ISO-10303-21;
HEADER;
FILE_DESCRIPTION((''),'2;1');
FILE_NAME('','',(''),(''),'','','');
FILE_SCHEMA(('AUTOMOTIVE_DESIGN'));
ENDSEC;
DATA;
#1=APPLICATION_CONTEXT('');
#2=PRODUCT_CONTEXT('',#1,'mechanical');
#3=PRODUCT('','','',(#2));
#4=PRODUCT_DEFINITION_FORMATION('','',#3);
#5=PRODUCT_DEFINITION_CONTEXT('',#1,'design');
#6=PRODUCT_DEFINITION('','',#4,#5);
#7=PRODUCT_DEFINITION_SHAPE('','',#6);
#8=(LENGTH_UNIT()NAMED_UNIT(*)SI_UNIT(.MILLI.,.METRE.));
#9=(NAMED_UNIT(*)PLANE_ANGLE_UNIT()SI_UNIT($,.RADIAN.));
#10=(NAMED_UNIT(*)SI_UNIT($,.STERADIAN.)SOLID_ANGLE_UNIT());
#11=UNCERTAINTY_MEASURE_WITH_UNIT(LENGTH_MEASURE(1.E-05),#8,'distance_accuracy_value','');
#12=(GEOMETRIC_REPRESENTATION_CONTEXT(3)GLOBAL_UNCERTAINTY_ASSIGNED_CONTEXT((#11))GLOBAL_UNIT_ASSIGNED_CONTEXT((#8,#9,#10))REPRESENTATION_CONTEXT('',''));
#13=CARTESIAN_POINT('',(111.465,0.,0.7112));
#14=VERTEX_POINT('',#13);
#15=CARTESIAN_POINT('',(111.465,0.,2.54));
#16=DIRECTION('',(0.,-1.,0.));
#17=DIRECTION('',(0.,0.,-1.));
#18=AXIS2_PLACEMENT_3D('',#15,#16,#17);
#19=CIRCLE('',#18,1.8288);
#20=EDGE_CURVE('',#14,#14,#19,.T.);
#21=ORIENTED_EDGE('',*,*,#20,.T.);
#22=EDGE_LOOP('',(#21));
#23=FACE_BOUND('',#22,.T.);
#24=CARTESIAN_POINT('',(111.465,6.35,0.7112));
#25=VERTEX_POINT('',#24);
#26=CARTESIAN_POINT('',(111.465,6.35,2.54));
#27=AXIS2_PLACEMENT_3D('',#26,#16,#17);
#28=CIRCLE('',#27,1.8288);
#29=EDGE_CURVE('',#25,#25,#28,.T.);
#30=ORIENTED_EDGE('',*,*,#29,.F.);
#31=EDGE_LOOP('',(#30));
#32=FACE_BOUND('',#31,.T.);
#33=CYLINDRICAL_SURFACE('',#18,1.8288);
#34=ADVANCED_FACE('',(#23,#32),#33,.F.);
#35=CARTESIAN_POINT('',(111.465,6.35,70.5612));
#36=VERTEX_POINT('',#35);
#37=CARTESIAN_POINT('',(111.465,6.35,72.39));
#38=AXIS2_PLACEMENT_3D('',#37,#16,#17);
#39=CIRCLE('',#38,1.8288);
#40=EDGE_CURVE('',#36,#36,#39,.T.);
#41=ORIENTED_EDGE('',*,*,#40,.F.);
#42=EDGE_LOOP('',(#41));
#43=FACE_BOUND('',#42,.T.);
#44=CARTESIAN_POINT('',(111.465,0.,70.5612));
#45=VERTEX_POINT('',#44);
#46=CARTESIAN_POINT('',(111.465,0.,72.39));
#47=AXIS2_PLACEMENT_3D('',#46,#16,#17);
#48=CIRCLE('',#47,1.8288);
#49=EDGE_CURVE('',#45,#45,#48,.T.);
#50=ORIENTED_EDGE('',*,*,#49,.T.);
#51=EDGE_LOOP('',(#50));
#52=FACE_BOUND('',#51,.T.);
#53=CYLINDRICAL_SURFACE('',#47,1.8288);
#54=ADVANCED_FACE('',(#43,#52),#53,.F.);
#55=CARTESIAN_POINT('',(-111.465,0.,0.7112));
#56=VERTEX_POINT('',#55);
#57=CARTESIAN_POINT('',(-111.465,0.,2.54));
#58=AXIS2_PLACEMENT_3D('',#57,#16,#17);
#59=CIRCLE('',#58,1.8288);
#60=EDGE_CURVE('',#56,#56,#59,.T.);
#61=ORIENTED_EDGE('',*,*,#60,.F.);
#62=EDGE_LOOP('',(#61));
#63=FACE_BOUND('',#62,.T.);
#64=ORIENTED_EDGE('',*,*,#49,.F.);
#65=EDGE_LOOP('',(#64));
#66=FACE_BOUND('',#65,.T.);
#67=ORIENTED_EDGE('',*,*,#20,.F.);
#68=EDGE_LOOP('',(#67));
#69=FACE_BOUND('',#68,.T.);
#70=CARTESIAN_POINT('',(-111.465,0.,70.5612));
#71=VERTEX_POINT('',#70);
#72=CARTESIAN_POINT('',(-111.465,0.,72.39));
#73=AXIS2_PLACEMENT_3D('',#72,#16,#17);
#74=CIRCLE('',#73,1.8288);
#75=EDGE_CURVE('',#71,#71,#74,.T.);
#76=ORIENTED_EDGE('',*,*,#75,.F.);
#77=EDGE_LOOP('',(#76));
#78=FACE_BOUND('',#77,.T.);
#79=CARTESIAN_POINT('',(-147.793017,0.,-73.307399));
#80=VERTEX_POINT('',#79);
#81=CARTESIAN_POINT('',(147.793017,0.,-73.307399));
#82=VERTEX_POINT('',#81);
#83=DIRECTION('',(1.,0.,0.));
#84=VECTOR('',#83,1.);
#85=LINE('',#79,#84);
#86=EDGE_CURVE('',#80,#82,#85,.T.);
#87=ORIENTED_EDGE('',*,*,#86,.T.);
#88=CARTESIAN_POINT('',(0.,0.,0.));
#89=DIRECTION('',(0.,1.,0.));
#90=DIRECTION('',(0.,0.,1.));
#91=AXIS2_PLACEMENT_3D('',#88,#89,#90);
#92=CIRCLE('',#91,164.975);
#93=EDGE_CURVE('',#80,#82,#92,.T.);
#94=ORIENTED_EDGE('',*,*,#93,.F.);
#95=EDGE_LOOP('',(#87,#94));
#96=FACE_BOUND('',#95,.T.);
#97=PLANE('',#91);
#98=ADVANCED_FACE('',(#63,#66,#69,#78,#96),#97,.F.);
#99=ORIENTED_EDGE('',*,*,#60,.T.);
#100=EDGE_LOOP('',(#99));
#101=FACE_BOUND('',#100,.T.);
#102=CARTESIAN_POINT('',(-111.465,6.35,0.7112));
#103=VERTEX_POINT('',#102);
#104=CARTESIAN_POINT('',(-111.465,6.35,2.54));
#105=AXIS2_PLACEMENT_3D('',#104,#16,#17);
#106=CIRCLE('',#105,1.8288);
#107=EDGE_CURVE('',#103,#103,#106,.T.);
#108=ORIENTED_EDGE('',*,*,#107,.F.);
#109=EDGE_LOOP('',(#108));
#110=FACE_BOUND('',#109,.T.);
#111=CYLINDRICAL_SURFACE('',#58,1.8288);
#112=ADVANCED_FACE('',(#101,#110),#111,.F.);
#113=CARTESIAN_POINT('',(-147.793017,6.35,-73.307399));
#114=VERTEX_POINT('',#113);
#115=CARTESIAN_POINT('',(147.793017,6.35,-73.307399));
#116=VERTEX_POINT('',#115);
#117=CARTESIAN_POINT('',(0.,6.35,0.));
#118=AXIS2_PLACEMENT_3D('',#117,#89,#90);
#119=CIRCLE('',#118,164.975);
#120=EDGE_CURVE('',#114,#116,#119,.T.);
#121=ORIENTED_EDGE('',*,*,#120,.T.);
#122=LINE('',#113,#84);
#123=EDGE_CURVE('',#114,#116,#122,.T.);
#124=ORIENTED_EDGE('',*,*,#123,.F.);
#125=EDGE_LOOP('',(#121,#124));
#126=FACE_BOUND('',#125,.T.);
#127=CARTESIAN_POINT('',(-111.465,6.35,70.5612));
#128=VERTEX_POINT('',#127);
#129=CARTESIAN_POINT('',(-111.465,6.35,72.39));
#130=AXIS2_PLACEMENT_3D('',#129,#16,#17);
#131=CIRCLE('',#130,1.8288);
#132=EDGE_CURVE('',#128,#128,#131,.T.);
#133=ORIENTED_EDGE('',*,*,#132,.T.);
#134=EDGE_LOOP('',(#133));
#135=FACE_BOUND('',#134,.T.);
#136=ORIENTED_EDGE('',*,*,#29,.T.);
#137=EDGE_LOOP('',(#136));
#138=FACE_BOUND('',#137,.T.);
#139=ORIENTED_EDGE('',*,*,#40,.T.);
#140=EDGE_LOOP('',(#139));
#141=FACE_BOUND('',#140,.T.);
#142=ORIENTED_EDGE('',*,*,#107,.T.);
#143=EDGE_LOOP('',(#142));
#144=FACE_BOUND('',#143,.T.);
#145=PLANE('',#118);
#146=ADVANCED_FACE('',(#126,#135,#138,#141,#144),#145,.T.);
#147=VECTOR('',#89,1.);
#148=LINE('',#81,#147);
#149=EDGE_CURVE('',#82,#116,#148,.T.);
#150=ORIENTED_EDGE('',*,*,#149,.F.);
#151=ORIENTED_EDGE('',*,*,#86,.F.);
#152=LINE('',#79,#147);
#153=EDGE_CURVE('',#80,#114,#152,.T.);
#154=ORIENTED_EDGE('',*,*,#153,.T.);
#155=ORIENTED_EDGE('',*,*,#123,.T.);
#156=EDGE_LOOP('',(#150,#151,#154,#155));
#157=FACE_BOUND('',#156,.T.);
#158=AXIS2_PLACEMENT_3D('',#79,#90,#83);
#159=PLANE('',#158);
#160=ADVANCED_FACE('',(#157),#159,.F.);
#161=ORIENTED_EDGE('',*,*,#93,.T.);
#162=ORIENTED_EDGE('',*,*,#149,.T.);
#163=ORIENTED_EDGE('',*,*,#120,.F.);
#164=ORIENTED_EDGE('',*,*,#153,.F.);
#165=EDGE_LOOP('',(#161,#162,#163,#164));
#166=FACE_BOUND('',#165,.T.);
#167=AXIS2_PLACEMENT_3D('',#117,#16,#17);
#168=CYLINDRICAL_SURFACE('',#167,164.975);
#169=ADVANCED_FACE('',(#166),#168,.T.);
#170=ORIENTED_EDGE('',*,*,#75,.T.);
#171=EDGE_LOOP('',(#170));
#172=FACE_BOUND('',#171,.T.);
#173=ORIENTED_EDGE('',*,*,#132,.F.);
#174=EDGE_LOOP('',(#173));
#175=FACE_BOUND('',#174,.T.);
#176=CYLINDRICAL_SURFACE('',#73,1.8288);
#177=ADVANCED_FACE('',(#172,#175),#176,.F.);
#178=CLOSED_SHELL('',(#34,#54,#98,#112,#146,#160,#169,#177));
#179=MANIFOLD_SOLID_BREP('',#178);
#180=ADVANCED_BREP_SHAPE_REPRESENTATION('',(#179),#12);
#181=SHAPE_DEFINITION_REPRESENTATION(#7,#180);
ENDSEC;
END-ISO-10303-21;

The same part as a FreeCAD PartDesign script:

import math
import FreeCAD as App
import Part
import Sketcher
Q = App.Units.Quantity

doc = App.newDocument("Part")
body = doc.addObject("PartDesign::Body", "Body")

# Sketch on XZ plane
sketch1 = body.newObject("Sketcher::SketchObject", "Sketch")
sketch1.AttachmentSupport = (doc.getObject("XZ_Plane"), [""])
sketch1.MapMode = "FlatFace"
sketch1.addGeometry(Part.Circle(App.Vector(0, 0, 0), App.Vector(0, 0, 1), 165), False)
sketch1.addConstraint([
    Sketcher.Constraint("Coincident", 0, 3, -1, 1),
    Sketcher.Constraint("Diameter", 0, Q("329.95 mm")),
])
pad1 = body.newObject("PartDesign::Pad", "Pad")
pad1.Profile = sketch1
pad1.Length = Q("0.25 in")
pad1.Reversed = True

# Sketch on XZ plane
sketch2 = body.newObject("Sketcher::SketchObject", "Sketch001")
sketch2.AttachmentSupport = (doc.getObject("XZ_Plane"), [""])
sketch2.MapMode = "FlatFace"
sketch2.addGeometry([
    Part.Circle(App.Vector(111.5, 2.5, 0), App.Vector(0, 0, 1), 1.8),
    Part.Circle(App.Vector(111.5, 72.4, 0), App.Vector(0, 0, 1), 1.8),
    Part.Circle(App.Vector(-111.5, 72.4, 0), App.Vector(0, 0, 1), 1.8),
    Part.Circle(App.Vector(-111.5, 2.5, 0), App.Vector(0, 0, 1), 1.8),
], False)
sketch2.addConstraint([
    Sketcher.Constraint("Equal", 0, 1),
    Sketcher.Constraint("Equal", 1, 2),
    Sketcher.Constraint("Equal", 2, 3),
    Sketcher.Constraint("Symmetric", 1, 3, 2, 3, -2),
    Sketcher.Constraint("Symmetric", 0, 3, 3, 3, -2),
    Sketcher.Constraint("Vertical", 0, 3, 1, 3),
    Sketcher.Constraint("Diameter", 0, Q("0.144 in")),
    Sketcher.Constraint("DistanceY", -1, 1, 0, 3, Q("0.1 in")),
    Sketcher.Constraint("DistanceY", -1, 1, 1, 3, Q("2.85 in")),
    Sketcher.Constraint("DistanceX", -1, 1, 0, 3, Q("111.465 mm")),
])
doc.recompute()
hole = body.newObject("PartDesign::Hole", "Hole")
hole.Profile = sketch2
hole.ThreadType = "None"
hole.Diameter = Q("0.144 in")
hole.DepthType = "ThroughAll"

# Sketch on XZ plane
sketch3 = body.newObject("Sketcher::SketchObject", "Sketch002")
sketch3.AttachmentSupport = (doc.getObject("XZ_Plane"), [""])
sketch3.MapMode = "FlatFace"
sketch3.addGeometry([
    Part.LineSegment(App.Vector(-148, -73, 0), App.Vector(148, -73, 0)),
    Part.ArcOfCircle(Part.Circle(App.Vector(0, 0, 0), App.Vector(0, 0, 1), 165), math.radians(-154), math.radians(-26)),
], False)
sketch3.addConstraint([
    Sketcher.Constraint("Coincident", 0, 1, 1, 1),
    Sketcher.Constraint("Coincident", 1, 2, 0, 2),
    Sketcher.Constraint("Horizontal", 0),
    Sketcher.Constraint("Coincident", 1, 3, -1, 1),
    Sketcher.Constraint("Radius", 1, Q("164.975 mm")),
    Sketcher.Constraint("DistanceY", 0, 1, -1, 1, Q("73.307399 mm")),
])
pocket1 = body.newObject("PartDesign::Pocket", "Pocket")
pocket1.Profile = sketch3
pocket1.Length = Q("0.25 in")

doc.recompute()
